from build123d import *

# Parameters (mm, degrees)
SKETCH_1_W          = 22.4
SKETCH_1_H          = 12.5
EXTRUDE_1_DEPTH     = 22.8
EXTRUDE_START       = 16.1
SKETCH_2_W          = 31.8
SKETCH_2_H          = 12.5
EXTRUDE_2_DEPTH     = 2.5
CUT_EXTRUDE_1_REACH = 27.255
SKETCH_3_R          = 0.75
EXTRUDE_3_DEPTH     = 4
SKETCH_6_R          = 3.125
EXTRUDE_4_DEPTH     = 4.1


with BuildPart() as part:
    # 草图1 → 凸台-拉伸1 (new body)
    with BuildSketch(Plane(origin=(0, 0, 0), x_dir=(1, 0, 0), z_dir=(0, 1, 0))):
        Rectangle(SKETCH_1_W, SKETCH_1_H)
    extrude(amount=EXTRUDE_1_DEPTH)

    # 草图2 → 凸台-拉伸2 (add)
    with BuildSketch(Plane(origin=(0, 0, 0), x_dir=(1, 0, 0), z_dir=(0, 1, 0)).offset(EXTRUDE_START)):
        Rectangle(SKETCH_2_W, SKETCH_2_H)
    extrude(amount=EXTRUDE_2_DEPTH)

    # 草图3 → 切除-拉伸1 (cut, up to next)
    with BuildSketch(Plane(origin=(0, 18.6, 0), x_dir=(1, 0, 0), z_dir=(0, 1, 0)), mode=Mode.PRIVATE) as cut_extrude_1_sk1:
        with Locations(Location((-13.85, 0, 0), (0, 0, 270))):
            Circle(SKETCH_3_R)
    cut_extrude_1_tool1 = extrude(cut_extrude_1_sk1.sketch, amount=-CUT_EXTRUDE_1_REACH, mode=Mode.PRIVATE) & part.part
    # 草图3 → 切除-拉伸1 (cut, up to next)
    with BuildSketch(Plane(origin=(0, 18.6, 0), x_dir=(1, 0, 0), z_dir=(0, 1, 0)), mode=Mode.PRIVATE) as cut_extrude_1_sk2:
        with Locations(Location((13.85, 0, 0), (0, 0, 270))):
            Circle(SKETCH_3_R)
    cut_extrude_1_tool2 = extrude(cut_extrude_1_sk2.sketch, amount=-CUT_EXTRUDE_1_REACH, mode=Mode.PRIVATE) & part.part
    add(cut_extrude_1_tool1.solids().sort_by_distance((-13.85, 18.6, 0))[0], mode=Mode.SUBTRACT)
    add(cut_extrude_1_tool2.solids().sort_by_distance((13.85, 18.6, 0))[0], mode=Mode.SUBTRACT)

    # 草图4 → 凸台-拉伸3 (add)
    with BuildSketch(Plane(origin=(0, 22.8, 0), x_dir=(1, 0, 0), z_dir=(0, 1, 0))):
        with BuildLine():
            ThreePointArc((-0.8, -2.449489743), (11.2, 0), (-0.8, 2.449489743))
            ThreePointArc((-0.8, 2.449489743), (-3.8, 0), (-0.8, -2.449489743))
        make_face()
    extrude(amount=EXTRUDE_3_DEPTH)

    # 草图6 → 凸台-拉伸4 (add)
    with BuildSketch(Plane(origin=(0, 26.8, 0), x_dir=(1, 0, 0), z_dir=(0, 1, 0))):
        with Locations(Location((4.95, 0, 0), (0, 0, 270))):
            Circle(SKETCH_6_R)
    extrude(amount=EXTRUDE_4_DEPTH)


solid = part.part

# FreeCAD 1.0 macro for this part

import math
import FreeCAD as App
import Part
import Sketcher
from FreeCAD import Vector
Q = App.Units.Quantity

doc = App.newDocument("Part")
body = doc.addObject("PartDesign::Body", "Body")

sketch1 = body.newObject("Sketcher::SketchObject", "Sketch")
sketch1.AttachmentSupport = (doc.getObject("XZ_Plane"), [""])
sketch1.MapMode = "FlatFace"
sketch1.addGeometry(Part.LineSegment(Vector(-11, -6, 0), Vector(-11, 6, 0)), False)
sketch1.addGeometry(Part.LineSegment(Vector(-11, 6, 0), Vector(11, 6, 0)), False)
sketch1.addGeometry(Part.LineSegment(Vector(11, 6, 0), Vector(11, -6, 0)), False)
sketch1.addGeometry(Part.LineSegment(Vector(11, -6, 0), Vector(-11, -6, 0)), False)
sketch1.addConstraint(Sketcher.Constraint("Coincident", 0, 2, 1, 1))
sketch1.addConstraint(Sketcher.Constraint("Coincident", 1, 2, 2, 1))
sketch1.addConstraint(Sketcher.Constraint("Coincident", 2, 2, 3, 1))
sketch1.addConstraint(Sketcher.Constraint("Coincident", 3, 2, 0, 1))
sketch1.addConstraint(Sketcher.Constraint("Vertical", 0))
sketch1.addConstraint(Sketcher.Constraint("Horizontal", 1))
sketch1.addConstraint(Sketcher.Constraint("Vertical", 2))
sketch1.addConstraint(Sketcher.Constraint("Horizontal", 3))
sketch1.addConstraint(Sketcher.Constraint("Symmetric", 0, 2, 2, 2, -1, 1))
sketch1.addConstraint(Sketcher.Constraint("DistanceX", 1, 1, 1, 2, Q("22.4 mm")))
sketch1.addConstraint(Sketcher.Constraint("DistanceY", 0, 1, 0, 2, Q("12.5 mm")))
pad1 = body.newObject("PartDesign::Pad", "Pad")
pad1.Profile = sketch1
pad1.Length = 22.8
pad1.Reversed = True

sketch2 = body.newObject("Sketcher::SketchObject", "Sketch001")
sketch2.AttachmentSupport = (doc.getObject("XZ_Plane"), [""])
sketch2.MapMode = "FlatFace"
sketch2.AttachmentOffset = App.Placement(Vector(0, 0, -16.1), App.Rotation())
sketch2.addGeometry(Part.LineSegment(Vector(-16, -6, 0), Vector(-16, 6, 0)), False)
sketch2.addGeometry(Part.LineSegment(Vector(-16, 6, 0), Vector(16, 6, 0)), False)
sketch2.addGeometry(Part.LineSegment(Vector(16, 6, 0), Vector(16, -6, 0)), False)
sketch2.addGeometry(Part.LineSegment(Vector(16, -6, 0), Vector(-16, -6, 0)), False)
sketch2.addConstraint(Sketcher.Constraint("Coincident", 0, 2, 1, 1))
sketch2.addConstraint(Sketcher.Constraint("Coincident", 1, 2, 2, 1))
sketch2.addConstraint(Sketcher.Constraint("Coincident", 2, 2, 3, 1))
sketch2.addConstraint(Sketcher.Constraint("Coincident", 3, 2, 0, 1))
sketch2.addConstraint(Sketcher.Constraint("Vertical", 0))
sketch2.addConstraint(Sketcher.Constraint("Horizontal", 1))
sketch2.addConstraint(Sketcher.Constraint("Vertical", 2))
sketch2.addConstraint(Sketcher.Constraint("Horizontal", 3))
sketch2.addConstraint(Sketcher.Constraint("Symmetric", 0, 2, 2, 2, -1, 1))
sketch2.addConstraint(Sketcher.Constraint("DistanceX", 1, 1, 1, 2, Q("31.8 mm")))
sketch2.addConstraint(Sketcher.Constraint("DistanceY", 0, 1, 0, 2, Q("12.5 mm")))
pad2 = body.newObject("PartDesign::Pad", "Pad001")
pad2.Profile = sketch2
pad2.Length = 2.5
pad2.Reversed = True

sketch3 = body.newObject("Sketcher::SketchObject", "Sketch002")
sketch3.AttachmentSupport = (doc.getObject("XZ_Plane"), [""])
sketch3.MapMode = "FlatFace"
sketch3.AttachmentOffset = App.Placement(Vector(0, 0, -18.6), App.Rotation())
sketch3.addGeometry(Part.Circle(Vector(-13.8, 0, 0), Vector(0, 0, 1), 0.8), False)
sketch3.addConstraint(Sketcher.Constraint("PointOnObject", 0, 3, -1))
sketch3.addConstraint(Sketcher.Constraint("Diameter", 0, Q("1.5 mm")))
sketch3.addConstraint(Sketcher.Constraint("DistanceX", 0, 3, -1, 1, Q("13.85 mm")))
pocket1 = body.newObject("PartDesign::Pocket", "Pocket")
pocket1.Profile = sketch3
pocket1.Type = "UpToFirst"
pocket1.Reversed = True

sketch4 = body.newObject("Sketcher::SketchObject", "Sketch003")
sketch4.AttachmentSupport = (doc.getObject("XZ_Plane"), [""])
sketch4.MapMode = "FlatFace"
sketch4.AttachmentOffset = App.Placement(Vector(0, 0, -18.6), App.Rotation())
sketch4.addGeometry(Part.Circle(Vector(13.8, 0, 0), Vector(0, 0, 1), 0.8), False)
sketch4.addConstraint(Sketcher.Constraint("PointOnObject", 0, 3, -1))
sketch4.addConstraint(Sketcher.Constraint("Diameter", 0, Q("1.5 mm")))
sketch4.addConstraint(Sketcher.Constraint("DistanceX", -1, 1, 0, 3, Q("13.85 mm")))
pocket2 = body.newObject("PartDesign::Pocket", "Pocket001")
pocket2.Profile = sketch4
pocket2.Type = "UpToFirst"
pocket2.Reversed = True

sketch5 = body.newObject("Sketcher::SketchObject", "Sketch004")
sketch5.AttachmentSupport = (doc.getObject("XZ_Plane"), [""])
sketch5.MapMode = "FlatFace"
sketch5.AttachmentOffset = App.Placement(Vector(0, 0, -22.8), App.Rotation())
sketch5.addGeometry(Part.ArcOfCircle(Part.Circle(Vector(5, 0, 0), Vector(0, 0, 1), 6.2), math.radians(-157), math.radians(157)), False)
sketch5.addGeometry(Part.ArcOfCircle(Part.Circle(Vector(-1.3, 0, 0), Vector(0, 0, 1), 2.5), math.radians(78), math.radians(282)), False)
sketch5.addConstraint(Sketcher.Constraint("Coincident", 0, 1, 1, 2))
sketch5.addConstraint(Sketcher.Constraint("Coincident", 1, 1, 0, 2))
sketch5.addConstraint(Sketcher.Constraint("Symmetric", 0, 1, 1, 1, -1))
sketch5.addConstraint(Sketcher.Constraint("Radius", 1, Q("2.5 mm")))
sketch5.addConstraint(Sketcher.Constraint("Radius", 0, Q("6.25 mm")))
sketch5.addConstraint(Sketcher.Constraint("DistanceX", 1, 3, -1, 1, Q("1.3 mm")))
sketch5.addConstraint(Sketcher.Constraint("DistanceX", 0, 1, -1, 1, Q("0.8 mm")))
pad3 = body.newObject("PartDesign::Pad", "Pad002")
pad3.Profile = sketch5
pad3.Length = 4
pad3.Reversed = True

sketch6 = body.newObject("Sketcher::SketchObject", "Sketch005")
sketch6.AttachmentSupport = (doc.getObject("XZ_Plane"), [""])
sketch6.MapMode = "FlatFace"
sketch6.AttachmentOffset = App.Placement(Vector(0, 0, -26.8), App.Rotation())
sketch6.addGeometry(Part.Circle(Vector(5, 0, 0), Vector(0, 0, 1), 3.1), False)
sketch6.addConstraint(Sketcher.Constraint("PointOnObject", 0, 3, -1))
sketch6.addConstraint(Sketcher.Constraint("Diameter", 0, Q("6.25 mm")))
sketch6.addConstraint(Sketcher.Constraint("DistanceX", -1, 1, 0, 3, Q("4.95 mm")))
pad4 = body.newObject("PartDesign::Pad", "Pad003")
pad4.Profile = sketch6
pad4.Length = 4.1
pad4.Reversed = True

doc.recompute()
